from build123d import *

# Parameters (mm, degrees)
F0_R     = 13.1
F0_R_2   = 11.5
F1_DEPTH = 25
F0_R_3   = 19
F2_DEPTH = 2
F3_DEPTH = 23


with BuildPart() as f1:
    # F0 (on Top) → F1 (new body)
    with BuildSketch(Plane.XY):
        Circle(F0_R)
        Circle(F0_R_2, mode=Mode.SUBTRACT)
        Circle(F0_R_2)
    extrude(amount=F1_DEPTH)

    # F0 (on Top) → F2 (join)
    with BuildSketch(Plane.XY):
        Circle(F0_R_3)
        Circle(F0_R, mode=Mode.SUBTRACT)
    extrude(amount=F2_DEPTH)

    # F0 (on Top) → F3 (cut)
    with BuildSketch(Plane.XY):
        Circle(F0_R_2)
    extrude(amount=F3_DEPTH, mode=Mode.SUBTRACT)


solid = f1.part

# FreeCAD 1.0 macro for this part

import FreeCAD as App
import Part
import Sketcher
from FreeCAD import Vector
Q = App.Units.Quantity

doc = App.newDocument("Part")
params = doc.addObject("Spreadsheet::Sheet", "Params")
for row, (alias, value) in enumerate([
    ("sketch1_diameter", "26.2 mm"),
    ("pad1_length", "25 mm"),
    ("sketch2_diameter", "38 mm"),
    ("sketch2_diameter2", "26.2 mm"),
    ("pad2_length", "2 mm"),
    ("sketch3_diameter", "23 mm"),
    ("pocket1_length", "23 mm"),
], start=1):
    params.set(f"A{row}", alias)
    params.set(f"B{row}", "=" + value)
    params.setAlias(f"B{row}", alias)

body = doc.addObject("PartDesign::Body", "Body")

# Sketch on XY plane
sketch1 = body.newObject("Sketcher::SketchObject", "Sketch")
sketch1.AttachmentSupport = (doc.getObject("XY_Plane"), [""])
sketch1.MapMode = "FlatFace"
sketch1.addGeometry(Part.Circle(Vector(0, 0, 0), Vector(0, 0, 1), 13), False)
sketch1.addConstraint([
    Sketcher.Constraint("Coincident", 0, 3, -1, 1),
    Sketcher.Constraint("Diameter", 0, Q("26.2 mm")),
])
sketch1.setExpression("Constraints[1]", "Params.sketch1_diameter")
pad1 = body.newObject("PartDesign::Pad", "Pad")
pad1.Profile = sketch1
pad1.setExpression("Length", "Params.pad1_length")

# Sketch on XY plane
sketch2 = body.newObject("Sketcher::SketchObject", "Sketch001")
sketch2.AttachmentSupport = (doc.getObject("XY_Plane"), [""])
sketch2.MapMode = "FlatFace"
sketch2.addGeometry([
    Part.Circle(Vector(0, 0, 0), Vector(0, 0, 1), 19),
    Part.Circle(Vector(0, 0, 0), Vector(0, 0, 1), 13),
], False)
sketch2.addConstraint([
    Sketcher.Constraint("Coincident", 0, 3, -1, 1),
    Sketcher.Constraint("Coincident", 1, 3, -1, 1),
    Sketcher.Constraint("Diameter", 0, Q("38 mm")),
    Sketcher.Constraint("Diameter", 1, Q("26.2 mm")),
])
sketch2.setExpression("Constraints[2]", "Params.sketch2_diameter")
sketch2.setExpression("Constraints[3]", "Params.sketch2_diameter2")
pad2 = body.newObject("PartDesign::Pad", "Pad001")
pad2.Profile = sketch2
pad2.setExpression("Length", "Params.pad2_length")

# Sketch on XY plane
sketch3 = body.newObject("Sketcher::SketchObject", "Sketch002")
sketch3.AttachmentSupport = (doc.getObject("XY_Plane"), [""])
sketch3.MapMode = "FlatFace"
sketch3.addGeometry(Part.Circle(Vector(0, 0, 0), Vector(0, 0, 1), 12), False)
sketch3.addConstraint([
    Sketcher.Constraint("Coincident", 0, 3, -1, 1),
    Sketcher.Constraint("Diameter", 0, Q("23 mm")),
])
sketch3.setExpression("Constraints[1]", "Params.sketch3_diameter")
pocket1 = body.newObject("PartDesign::Pocket", "Pocket")
pocket1.Profile = sketch3
pocket1.setExpression("Length", "Params.pocket1_length")
pocket1.Reversed = True

doc.recompute()
